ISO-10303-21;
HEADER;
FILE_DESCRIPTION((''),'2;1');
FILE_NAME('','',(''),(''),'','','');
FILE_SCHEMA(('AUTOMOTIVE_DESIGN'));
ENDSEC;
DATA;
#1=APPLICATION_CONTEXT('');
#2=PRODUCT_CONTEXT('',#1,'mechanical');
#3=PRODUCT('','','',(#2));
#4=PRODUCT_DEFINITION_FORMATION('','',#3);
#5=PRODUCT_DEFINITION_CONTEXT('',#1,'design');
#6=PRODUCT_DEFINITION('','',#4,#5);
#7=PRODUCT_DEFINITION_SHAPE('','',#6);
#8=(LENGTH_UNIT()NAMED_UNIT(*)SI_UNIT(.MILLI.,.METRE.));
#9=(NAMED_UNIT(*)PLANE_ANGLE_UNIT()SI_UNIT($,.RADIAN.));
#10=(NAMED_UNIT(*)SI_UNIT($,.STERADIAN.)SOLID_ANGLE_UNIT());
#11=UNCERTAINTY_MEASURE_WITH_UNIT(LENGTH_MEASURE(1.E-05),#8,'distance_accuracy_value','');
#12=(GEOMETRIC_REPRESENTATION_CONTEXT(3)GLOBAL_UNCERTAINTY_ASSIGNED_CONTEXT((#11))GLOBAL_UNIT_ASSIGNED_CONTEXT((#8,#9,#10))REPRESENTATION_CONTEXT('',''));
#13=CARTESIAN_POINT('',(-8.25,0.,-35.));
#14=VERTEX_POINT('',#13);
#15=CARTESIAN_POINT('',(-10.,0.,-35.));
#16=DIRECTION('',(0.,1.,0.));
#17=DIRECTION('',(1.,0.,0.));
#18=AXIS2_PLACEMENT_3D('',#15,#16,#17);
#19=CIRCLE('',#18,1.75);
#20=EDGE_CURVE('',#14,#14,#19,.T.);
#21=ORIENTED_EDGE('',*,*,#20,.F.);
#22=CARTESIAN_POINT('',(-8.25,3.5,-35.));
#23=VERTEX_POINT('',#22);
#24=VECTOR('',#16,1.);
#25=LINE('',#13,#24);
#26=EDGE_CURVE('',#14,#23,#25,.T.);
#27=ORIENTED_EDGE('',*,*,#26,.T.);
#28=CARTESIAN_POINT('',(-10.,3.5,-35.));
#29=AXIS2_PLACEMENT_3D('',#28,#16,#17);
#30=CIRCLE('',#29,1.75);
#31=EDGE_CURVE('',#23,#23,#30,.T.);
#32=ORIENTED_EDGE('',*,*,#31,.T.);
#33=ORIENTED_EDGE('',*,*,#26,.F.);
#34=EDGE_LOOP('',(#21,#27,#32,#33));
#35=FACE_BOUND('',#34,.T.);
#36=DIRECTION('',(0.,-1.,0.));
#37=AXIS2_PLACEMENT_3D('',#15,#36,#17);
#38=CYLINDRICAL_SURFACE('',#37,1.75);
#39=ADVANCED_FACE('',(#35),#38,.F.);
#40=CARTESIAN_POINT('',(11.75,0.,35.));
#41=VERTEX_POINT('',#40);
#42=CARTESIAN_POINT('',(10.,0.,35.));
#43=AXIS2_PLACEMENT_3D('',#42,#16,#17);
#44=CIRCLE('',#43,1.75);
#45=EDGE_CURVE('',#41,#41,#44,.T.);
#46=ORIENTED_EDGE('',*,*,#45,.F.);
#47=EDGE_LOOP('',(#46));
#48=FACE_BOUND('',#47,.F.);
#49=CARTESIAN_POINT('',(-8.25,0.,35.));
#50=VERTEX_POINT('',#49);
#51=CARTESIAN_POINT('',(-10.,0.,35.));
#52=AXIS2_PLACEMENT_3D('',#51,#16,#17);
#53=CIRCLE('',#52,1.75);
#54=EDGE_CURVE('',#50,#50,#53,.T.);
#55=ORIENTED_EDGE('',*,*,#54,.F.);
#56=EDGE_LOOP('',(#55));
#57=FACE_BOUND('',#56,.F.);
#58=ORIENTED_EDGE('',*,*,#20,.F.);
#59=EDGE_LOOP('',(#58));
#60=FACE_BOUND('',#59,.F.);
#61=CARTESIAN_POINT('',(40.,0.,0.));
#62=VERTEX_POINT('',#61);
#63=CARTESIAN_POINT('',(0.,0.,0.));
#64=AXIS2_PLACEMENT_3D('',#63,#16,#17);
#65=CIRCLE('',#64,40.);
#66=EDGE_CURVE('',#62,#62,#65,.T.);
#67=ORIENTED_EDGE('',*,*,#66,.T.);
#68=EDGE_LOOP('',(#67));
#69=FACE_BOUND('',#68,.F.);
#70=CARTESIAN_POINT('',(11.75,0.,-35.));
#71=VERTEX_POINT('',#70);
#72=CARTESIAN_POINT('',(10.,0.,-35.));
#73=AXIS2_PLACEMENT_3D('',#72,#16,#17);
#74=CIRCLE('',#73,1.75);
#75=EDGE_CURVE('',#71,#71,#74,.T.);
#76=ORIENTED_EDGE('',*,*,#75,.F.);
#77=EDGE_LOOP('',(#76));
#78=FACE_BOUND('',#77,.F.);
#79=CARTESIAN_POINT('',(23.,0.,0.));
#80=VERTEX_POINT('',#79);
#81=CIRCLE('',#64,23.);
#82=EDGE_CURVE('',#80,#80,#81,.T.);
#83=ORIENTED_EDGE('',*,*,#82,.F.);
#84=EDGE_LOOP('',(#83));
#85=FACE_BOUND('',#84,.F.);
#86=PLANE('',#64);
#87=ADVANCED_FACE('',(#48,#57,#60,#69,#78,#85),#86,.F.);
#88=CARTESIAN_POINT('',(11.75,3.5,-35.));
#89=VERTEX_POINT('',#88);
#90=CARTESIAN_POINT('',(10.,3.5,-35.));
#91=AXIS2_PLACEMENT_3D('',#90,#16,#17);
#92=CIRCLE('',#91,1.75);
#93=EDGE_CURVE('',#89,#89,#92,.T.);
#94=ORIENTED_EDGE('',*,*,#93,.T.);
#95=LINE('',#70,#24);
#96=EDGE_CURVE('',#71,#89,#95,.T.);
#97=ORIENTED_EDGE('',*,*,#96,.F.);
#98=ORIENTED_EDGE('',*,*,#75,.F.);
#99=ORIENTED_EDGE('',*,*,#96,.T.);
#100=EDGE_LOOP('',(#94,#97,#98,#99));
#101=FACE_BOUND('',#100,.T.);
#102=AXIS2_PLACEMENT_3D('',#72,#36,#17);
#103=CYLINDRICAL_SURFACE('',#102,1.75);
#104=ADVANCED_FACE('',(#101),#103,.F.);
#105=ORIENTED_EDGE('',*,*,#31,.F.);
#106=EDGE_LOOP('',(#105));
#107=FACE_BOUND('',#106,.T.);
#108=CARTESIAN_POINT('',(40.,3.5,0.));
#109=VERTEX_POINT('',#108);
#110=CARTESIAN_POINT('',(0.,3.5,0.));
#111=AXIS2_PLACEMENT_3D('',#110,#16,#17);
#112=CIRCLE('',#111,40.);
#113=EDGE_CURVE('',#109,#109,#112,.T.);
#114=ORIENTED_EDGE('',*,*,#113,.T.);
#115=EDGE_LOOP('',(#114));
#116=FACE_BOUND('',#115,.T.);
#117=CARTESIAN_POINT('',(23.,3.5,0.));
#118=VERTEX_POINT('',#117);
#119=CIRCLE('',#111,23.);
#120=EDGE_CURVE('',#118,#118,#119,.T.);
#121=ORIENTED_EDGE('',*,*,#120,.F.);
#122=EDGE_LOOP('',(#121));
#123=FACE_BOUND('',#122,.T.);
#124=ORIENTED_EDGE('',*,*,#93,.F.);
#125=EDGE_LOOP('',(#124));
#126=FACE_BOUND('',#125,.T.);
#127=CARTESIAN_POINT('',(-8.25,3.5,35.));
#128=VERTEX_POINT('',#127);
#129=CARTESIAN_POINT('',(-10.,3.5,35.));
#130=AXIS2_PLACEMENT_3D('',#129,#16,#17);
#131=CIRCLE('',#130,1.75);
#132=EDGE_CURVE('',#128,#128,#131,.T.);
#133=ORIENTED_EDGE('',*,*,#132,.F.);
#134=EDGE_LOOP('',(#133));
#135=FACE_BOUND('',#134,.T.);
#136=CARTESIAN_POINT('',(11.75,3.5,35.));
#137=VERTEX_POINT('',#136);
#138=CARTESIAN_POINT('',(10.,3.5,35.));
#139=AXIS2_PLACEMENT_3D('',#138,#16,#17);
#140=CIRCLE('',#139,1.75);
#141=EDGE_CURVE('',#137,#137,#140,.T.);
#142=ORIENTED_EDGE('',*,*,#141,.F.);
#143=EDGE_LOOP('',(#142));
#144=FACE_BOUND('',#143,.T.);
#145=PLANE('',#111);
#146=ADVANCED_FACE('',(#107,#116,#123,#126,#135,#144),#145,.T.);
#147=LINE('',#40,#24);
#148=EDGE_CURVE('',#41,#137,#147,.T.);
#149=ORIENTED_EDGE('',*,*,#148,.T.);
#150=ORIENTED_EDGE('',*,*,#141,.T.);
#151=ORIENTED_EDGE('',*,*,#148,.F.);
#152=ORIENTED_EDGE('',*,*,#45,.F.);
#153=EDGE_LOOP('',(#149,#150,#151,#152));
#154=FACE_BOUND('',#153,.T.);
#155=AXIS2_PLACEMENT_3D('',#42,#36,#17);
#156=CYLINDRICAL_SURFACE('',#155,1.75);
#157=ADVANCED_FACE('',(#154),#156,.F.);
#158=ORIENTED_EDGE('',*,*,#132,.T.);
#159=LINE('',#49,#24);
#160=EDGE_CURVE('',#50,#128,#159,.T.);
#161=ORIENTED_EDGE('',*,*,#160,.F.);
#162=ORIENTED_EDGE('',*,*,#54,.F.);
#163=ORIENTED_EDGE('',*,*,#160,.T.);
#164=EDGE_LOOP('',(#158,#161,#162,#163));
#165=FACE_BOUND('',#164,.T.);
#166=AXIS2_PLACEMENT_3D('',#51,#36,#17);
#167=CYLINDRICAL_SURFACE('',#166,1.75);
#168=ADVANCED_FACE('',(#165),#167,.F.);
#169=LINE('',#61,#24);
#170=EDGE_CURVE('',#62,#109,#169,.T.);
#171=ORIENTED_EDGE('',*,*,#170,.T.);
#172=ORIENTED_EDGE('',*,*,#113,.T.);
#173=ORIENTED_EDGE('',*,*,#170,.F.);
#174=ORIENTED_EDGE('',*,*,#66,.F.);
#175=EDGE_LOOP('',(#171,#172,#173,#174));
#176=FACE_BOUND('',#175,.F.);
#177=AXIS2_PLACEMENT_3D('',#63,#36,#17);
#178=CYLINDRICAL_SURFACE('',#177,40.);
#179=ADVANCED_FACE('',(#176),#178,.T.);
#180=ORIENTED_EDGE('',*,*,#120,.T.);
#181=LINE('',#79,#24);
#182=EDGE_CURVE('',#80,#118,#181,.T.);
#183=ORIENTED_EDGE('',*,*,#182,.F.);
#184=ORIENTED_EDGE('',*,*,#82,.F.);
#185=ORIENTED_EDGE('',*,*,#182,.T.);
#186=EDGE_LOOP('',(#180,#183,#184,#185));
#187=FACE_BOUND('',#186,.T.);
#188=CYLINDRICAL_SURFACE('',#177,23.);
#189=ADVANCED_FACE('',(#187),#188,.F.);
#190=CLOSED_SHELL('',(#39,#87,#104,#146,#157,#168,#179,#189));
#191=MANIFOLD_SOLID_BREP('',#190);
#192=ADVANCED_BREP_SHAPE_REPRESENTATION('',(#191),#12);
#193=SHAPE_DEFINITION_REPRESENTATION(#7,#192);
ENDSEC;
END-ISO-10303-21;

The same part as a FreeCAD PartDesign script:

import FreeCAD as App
import Part
import Sketcher

V = App.Vector
Q = App.Units.Quantity

doc = App.newDocument("Part")
params = doc.addObject("Spreadsheet::Sheet", "Params")
for row, (alias, value) in enumerate([
    ("sketch1_diameter", "80 mm"),
    ("sketch1_diameter2", "46 mm"),
    ("sketch1_diameter3", "3.5 mm"),
    ("pad1_length", "3.5 mm"),
], start=1):
    params.set(f"A{row}", alias)
    params.set(f"B{row}", "=" + value)
    params.setAlias(f"B{row}", alias)

body = doc.addObject("PartDesign::Body", "Body")

# Sketch on XZ plane
sketch1 = body.newObject("Sketcher::SketchObject", "Sketch")
sketch1.AttachmentSupport = (doc.getObject("XZ_Plane"), [""])
sketch1.MapMode = "FlatFace"
sketch1.addGeometry([
    Part.Circle(V(0, 0, 0), V(0, 0, 1), 40),  # 0
    Part.Circle(V(-10, 35, 0), V(0, 0, 1), 1.8),  # 1
    Part.Circle(V(10, 35, 0), V(0, 0, 1), 1.8),  # 2
    Part.Circle(V(-10, -35, 0), V(0, 0, 1), 1.8),  # 3
    Part.Circle(V(0, 0, 0), V(0, 0, 1), 23),  # 4
    Part.Circle(V(10, -35, 0), V(0, 0, 1), 1.8),  # 5
], False)
sketch1.addConstraint([
    Sketcher.Constraint("Coincident", 0, 3, -1, 1),
    Sketcher.Constraint("Coincident", 4, 3, -1, 1),
    Sketcher.Constraint("Equal", 1, 2),
    Sketcher.Constraint("Equal", 2, 3),
    Sketcher.Constraint("Equal", 3, 5),
    Sketcher.Constraint("Symmetric", 2, 3, 3, 3, -1, 1),
    Sketcher.Constraint("Symmetric", 1, 3, 5, 3, -1, 1),
    Sketcher.Constraint("Symmetric", 1, 3, 2, 3, -2),
    Sketcher.Constraint("Diameter", 0, Q("80 mm")),
    Sketcher.Constraint("Diameter", 4, Q("46 mm")),
    Sketcher.Constraint("Diameter", 1, Q("3.5 mm")),
    Sketcher.Constraint("DistanceX", 1, 3, -1, 1, Q("10 mm")),
    Sketcher.Constraint("DistanceY", -1, 1, 1, 3, Q("35 mm")),
])
sketch1.setExpression("Constraints[8]", "Params.sketch1_diameter")
sketch1.setExpression("Constraints[9]", "Params.sketch1_diameter2")
sketch1.setExpression("Constraints[10]", "Params.sketch1_diameter3")
pad1 = body.newObject("PartDesign::Pad", "Pad")
pad1.Profile = sketch1
pad1.setExpression("Length", "Params.pad1_length")
pad1.Reversed = True

doc.recompute()
